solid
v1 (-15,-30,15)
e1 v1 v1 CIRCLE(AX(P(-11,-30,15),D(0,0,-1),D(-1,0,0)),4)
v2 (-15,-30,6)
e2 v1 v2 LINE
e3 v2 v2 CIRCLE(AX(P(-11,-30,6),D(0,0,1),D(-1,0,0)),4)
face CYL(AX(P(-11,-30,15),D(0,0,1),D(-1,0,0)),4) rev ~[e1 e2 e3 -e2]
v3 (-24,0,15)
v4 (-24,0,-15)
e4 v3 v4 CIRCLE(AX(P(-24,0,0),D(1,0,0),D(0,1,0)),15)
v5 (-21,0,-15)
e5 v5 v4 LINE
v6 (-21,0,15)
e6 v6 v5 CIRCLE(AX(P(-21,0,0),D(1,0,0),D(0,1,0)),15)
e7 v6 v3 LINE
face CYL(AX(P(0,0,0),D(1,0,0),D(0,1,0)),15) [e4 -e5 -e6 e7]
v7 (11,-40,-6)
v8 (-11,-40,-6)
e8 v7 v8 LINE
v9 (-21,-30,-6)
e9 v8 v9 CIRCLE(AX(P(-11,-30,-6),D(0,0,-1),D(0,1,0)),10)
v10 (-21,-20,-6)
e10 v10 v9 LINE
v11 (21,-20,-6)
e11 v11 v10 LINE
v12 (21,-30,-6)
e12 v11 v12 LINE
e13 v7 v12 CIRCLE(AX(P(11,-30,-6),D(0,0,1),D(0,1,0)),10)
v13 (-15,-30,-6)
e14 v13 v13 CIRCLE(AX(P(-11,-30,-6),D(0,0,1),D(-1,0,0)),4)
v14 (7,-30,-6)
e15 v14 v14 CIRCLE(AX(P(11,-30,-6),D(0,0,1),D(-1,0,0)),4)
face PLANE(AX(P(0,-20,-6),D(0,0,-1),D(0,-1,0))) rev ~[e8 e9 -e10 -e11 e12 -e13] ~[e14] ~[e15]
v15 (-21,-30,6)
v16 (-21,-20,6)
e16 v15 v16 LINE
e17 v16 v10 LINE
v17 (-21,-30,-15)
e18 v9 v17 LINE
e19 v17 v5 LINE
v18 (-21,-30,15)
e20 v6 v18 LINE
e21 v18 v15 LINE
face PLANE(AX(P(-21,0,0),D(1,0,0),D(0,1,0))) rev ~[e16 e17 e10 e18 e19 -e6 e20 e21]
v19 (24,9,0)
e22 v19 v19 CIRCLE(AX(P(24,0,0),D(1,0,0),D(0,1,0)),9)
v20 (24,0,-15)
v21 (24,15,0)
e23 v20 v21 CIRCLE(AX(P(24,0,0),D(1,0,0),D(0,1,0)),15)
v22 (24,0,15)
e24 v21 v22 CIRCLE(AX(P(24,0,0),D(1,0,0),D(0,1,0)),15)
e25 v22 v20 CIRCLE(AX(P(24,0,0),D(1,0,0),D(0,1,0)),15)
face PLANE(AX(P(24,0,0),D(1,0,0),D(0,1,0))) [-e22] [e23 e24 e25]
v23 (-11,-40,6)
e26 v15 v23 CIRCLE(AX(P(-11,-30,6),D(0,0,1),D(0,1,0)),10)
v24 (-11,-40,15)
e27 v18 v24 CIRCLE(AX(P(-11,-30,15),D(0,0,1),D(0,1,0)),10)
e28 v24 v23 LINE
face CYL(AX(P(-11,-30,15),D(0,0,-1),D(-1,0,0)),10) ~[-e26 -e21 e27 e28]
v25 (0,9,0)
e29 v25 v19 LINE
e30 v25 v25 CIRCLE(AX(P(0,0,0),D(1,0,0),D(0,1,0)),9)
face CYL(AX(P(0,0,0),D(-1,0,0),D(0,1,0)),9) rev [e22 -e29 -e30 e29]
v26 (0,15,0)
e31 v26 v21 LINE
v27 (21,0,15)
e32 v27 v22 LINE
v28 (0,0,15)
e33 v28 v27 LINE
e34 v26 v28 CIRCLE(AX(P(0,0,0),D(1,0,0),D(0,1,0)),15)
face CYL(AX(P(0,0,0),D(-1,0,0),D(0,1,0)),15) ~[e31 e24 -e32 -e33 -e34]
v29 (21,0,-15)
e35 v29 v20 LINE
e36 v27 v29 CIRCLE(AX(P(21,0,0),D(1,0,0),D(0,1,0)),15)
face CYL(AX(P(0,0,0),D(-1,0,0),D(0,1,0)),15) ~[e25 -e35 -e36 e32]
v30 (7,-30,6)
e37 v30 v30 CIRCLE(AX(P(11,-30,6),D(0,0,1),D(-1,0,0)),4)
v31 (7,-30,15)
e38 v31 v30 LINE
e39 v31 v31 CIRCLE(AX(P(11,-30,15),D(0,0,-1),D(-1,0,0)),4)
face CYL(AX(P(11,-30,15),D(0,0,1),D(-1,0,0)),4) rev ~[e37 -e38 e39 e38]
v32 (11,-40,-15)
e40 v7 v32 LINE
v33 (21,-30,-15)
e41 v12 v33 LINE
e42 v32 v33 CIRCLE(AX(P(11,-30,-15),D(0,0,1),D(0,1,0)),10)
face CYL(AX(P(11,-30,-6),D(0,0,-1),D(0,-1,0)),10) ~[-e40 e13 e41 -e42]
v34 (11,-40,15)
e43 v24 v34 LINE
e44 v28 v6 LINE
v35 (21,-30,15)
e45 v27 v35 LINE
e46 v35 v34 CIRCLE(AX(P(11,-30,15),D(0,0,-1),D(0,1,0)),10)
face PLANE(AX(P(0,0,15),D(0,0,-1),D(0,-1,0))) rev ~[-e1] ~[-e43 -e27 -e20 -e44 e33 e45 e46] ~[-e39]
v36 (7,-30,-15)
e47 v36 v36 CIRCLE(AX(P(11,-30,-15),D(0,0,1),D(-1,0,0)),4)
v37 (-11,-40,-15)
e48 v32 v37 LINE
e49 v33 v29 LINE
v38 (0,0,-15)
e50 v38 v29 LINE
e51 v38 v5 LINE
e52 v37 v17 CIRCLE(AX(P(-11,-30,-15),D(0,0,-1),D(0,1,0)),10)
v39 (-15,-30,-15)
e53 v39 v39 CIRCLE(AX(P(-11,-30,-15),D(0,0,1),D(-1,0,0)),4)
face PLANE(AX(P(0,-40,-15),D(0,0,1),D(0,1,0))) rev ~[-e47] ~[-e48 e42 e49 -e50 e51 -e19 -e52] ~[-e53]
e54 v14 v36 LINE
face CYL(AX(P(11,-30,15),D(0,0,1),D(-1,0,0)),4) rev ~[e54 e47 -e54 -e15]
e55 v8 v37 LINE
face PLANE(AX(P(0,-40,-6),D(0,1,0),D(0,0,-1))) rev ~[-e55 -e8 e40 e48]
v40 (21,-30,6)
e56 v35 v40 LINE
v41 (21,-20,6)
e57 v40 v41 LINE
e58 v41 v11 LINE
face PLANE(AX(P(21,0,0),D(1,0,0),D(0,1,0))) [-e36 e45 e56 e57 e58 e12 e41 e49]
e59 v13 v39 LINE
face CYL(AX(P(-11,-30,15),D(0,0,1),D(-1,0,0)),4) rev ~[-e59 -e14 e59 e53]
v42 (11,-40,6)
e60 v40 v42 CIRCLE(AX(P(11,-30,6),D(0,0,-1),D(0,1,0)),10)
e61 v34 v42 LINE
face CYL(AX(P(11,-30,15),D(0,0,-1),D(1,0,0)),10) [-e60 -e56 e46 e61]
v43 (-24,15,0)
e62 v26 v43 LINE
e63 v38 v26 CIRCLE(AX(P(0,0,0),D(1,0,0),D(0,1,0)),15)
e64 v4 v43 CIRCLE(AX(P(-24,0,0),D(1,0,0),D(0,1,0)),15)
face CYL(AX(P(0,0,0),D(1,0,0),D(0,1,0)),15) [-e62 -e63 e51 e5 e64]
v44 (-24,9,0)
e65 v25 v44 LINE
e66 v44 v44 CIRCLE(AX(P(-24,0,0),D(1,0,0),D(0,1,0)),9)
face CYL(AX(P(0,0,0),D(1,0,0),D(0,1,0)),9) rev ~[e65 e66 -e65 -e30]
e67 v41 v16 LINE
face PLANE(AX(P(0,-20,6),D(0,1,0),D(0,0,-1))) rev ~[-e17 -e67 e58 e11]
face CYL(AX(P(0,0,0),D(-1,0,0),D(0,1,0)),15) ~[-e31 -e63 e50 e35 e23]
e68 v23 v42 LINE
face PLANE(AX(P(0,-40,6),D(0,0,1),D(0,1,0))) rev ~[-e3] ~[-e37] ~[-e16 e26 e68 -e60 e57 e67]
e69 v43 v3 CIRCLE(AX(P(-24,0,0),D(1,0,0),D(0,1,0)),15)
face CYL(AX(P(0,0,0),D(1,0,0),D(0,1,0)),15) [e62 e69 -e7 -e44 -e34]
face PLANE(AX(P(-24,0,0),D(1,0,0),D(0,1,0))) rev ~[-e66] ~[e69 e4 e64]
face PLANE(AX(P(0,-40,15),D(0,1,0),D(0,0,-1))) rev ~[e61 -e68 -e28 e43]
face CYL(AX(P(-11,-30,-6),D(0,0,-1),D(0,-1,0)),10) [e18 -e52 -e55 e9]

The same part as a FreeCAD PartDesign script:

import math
import FreeCAD as App
import Part
import Sketcher
from FreeCAD import Vector


def edges_at(feature, points):
    """Names of the edges that pass closest to the given points."""
    edges = feature.Shape.Edges
    near = lambda p: min(range(len(edges)), key=lambda i: edges[i].distToShape(Part.Vertex(*p))[0])
    return sorted({f"Edge{near(p) + 1}" for p in points})

doc = App.newDocument("Part")
body = doc.addObject("PartDesign::Body", "Body")

# Sketch on YZ plane
sketch1 = body.newObject("Sketcher::SketchObject", "Sketch")
sketch1.AttachmentSupport = (doc.getObject("YZ_Plane"), [""])
sketch1.MapMode = "FlatFace"
sketch1.addGeometry(Part.Circle(Vector(0, 0, 0), Vector(0, 0, 1), 15), False)
sketch1.addGeometry(Part.Circle(Vector(0, 0, 0), Vector(0, 0, 1), 9), False)
sketch1.addConstraint(Sketcher.Constraint("Coincident", 0, 3, -1, 1))
sketch1.addConstraint(Sketcher.Constraint("Coincident", 1, 3, -1, 1))
sketch1.addConstraint(Sketcher.Constraint("Diameter", 0, 30.0))
sketch1.addConstraint(Sketcher.Constraint("Diameter", 1, 18.0))
pad1 = body.newObject("PartDesign::Pad", "Pad")
pad1.Profile = sketch1
pad1.Length = 48
pad1.Midplane = True

# Sketch on YZ plane
sketch2 = body.newObject("Sketcher::SketchObject", "Sketch001")
sketch2.AttachmentSupport = (doc.getObject("YZ_Plane"), [""])
sketch2.MapMode = "FlatFace"
sketch2.addGeometry(Part.ArcOfCircle(Part.Circle(Vector(0, 0, 0), Vector(0, 0, 1), 15), math.radians(90), math.radians(270)), False)
sketch2.addGeometry(Part.LineSegment(Vector(0, 15, 0), Vector(-40, 15, 0)), False)
sketch2.addGeometry(Part.LineSegment(Vector(-40, 15, 0), Vector(-40, 6, 0)), False)
sketch2.addGeometry(Part.LineSegment(Vector(-40, 6, 0), Vector(-20, 6, 0)), False)
sketch2.addGeometry(Part.LineSegment(Vector(-20, 6, 0), Vector(-20, -6, 0)), False)
sketch2.addGeometry(Part.LineSegment(Vector(-20, -6, 0), Vector(-40, -6, 0)), False)
sketch2.addGeometry(Part.LineSegment(Vector(-40, -6, 0), Vector(-40, -15, 0)), False)
sketch2.addGeometry(Part.LineSegment(Vector(-40, -15, 0), Vector(0, -15, 0)), False)
sketch2.addConstraint(Sketcher.Constraint("Tangent", 0, 1, 1, 1))
sketch2.addConstraint(Sketcher.Constraint("Coincident", 1, 2, 2, 1))
sketch2.addConstraint(Sketcher.Constraint("Coincident", 2, 2, 3, 1))
sketch2.addConstraint(Sketcher.Constraint("Coincident", 3, 2, 4, 1))
sketch2.addConstraint(Sketcher.Constraint("Coincident", 4, 2, 5, 1))
sketch2.addConstraint(Sketcher.Constraint("Coincident", 5, 2, 6, 1))
sketch2.addConstraint(Sketcher.Constraint("Coincident", 6, 2, 7, 1))
sketch2.addConstraint(Sketcher.Constraint("Tangent", 7, 2, 0, 2))
sketch2.addConstraint(Sketcher.Constraint("Horizontal", 1))
sketch2.addConstraint(Sketcher.Constraint("Vertical", 2))
sketch2.addConstraint(Sketcher.Constraint("Horizontal", 3))
sketch2.addConstraint(Sketcher.Constraint("Vertical", 4))
sketch2.addConstraint(Sketcher.Constraint("Horizontal", 5))
sketch2.addConstraint(Sketcher.Constraint("Vertical", 6))
sketch2.addConstraint(Sketcher.Constraint("Horizontal", 7))
sketch2.addConstraint(Sketcher.Constraint("Coincident", 0, 3, -1, 1))
sketch2.addConstraint(Sketcher.Constraint("Symmetric", 2, 2, 5, 2, -1))
sketch2.addConstraint(Sketcher.Constraint("Radius", 0, 15.0))
sketch2.addConstraint(Sketcher.Constraint("DistanceX", 1, 2, 1, 1, 40.0))
sketch2.addConstraint(Sketcher.Constraint("DistanceX", 3, 1, 3, 2, 20.0))
sketch2.addConstraint(Sketcher.Constraint("DistanceY", 4, 2, 4, 1, 12.0))
pad2 = body.newObject("PartDesign::Pad", "Pad001")
pad2.Profile = sketch2
pad2.Length = 42
pad2.Midplane = True
doc.recompute()

fillet = body.newObject("PartDesign::Fillet", "Fillet")
fillet.Base = (pad2, edges_at(pad2, [
    (21, -40, 10.5),
    (21, -40, -10.5),
    (-21, -40, 10.5),
    (-21, -40, -10.5),
]))
fillet.Radius = 10

# Sketch on XY plane
sketch3 = body.newObject("Sketcher::SketchObject", "Sketch002")
sketch3.AttachmentSupport = (doc.getObject("XY_Plane"), [""])
sketch3.MapMode = "FlatFace"
sketch3.AttachmentOffset = App.Placement(Vector(0, 0, 15), App.Rotation())
sketch3.addGeometry(Part.Circle(Vector(-11, -30, 0), Vector(0, 0, 1), 4), False)
sketch3.addGeometry(Part.Circle(Vector(11, -30, 0), Vector(0, 0, 1), 4), False)
sketch3.addConstraint(Sketcher.Constraint("Equal", 0, 1))
sketch3.addConstraint(Sketcher.Constraint("Symmetric", 0, 3, 1, 3, -2))
sketch3.addConstraint(Sketcher.Constraint("Diameter", 0, 8.0))
sketch3.addConstraint(Sketcher.Constraint("DistanceX", 0, 3, -1, 1, 11.0))
sketch3.addConstraint(Sketcher.Constraint("DistanceY", 0, 3, -1, 1, 30.0))
pocket1 = body.newObject("PartDesign::Pocket", "Pocket")
pocket1.Profile = sketch3
pocket1.Type = "ThroughAll"

doc.recompute()
